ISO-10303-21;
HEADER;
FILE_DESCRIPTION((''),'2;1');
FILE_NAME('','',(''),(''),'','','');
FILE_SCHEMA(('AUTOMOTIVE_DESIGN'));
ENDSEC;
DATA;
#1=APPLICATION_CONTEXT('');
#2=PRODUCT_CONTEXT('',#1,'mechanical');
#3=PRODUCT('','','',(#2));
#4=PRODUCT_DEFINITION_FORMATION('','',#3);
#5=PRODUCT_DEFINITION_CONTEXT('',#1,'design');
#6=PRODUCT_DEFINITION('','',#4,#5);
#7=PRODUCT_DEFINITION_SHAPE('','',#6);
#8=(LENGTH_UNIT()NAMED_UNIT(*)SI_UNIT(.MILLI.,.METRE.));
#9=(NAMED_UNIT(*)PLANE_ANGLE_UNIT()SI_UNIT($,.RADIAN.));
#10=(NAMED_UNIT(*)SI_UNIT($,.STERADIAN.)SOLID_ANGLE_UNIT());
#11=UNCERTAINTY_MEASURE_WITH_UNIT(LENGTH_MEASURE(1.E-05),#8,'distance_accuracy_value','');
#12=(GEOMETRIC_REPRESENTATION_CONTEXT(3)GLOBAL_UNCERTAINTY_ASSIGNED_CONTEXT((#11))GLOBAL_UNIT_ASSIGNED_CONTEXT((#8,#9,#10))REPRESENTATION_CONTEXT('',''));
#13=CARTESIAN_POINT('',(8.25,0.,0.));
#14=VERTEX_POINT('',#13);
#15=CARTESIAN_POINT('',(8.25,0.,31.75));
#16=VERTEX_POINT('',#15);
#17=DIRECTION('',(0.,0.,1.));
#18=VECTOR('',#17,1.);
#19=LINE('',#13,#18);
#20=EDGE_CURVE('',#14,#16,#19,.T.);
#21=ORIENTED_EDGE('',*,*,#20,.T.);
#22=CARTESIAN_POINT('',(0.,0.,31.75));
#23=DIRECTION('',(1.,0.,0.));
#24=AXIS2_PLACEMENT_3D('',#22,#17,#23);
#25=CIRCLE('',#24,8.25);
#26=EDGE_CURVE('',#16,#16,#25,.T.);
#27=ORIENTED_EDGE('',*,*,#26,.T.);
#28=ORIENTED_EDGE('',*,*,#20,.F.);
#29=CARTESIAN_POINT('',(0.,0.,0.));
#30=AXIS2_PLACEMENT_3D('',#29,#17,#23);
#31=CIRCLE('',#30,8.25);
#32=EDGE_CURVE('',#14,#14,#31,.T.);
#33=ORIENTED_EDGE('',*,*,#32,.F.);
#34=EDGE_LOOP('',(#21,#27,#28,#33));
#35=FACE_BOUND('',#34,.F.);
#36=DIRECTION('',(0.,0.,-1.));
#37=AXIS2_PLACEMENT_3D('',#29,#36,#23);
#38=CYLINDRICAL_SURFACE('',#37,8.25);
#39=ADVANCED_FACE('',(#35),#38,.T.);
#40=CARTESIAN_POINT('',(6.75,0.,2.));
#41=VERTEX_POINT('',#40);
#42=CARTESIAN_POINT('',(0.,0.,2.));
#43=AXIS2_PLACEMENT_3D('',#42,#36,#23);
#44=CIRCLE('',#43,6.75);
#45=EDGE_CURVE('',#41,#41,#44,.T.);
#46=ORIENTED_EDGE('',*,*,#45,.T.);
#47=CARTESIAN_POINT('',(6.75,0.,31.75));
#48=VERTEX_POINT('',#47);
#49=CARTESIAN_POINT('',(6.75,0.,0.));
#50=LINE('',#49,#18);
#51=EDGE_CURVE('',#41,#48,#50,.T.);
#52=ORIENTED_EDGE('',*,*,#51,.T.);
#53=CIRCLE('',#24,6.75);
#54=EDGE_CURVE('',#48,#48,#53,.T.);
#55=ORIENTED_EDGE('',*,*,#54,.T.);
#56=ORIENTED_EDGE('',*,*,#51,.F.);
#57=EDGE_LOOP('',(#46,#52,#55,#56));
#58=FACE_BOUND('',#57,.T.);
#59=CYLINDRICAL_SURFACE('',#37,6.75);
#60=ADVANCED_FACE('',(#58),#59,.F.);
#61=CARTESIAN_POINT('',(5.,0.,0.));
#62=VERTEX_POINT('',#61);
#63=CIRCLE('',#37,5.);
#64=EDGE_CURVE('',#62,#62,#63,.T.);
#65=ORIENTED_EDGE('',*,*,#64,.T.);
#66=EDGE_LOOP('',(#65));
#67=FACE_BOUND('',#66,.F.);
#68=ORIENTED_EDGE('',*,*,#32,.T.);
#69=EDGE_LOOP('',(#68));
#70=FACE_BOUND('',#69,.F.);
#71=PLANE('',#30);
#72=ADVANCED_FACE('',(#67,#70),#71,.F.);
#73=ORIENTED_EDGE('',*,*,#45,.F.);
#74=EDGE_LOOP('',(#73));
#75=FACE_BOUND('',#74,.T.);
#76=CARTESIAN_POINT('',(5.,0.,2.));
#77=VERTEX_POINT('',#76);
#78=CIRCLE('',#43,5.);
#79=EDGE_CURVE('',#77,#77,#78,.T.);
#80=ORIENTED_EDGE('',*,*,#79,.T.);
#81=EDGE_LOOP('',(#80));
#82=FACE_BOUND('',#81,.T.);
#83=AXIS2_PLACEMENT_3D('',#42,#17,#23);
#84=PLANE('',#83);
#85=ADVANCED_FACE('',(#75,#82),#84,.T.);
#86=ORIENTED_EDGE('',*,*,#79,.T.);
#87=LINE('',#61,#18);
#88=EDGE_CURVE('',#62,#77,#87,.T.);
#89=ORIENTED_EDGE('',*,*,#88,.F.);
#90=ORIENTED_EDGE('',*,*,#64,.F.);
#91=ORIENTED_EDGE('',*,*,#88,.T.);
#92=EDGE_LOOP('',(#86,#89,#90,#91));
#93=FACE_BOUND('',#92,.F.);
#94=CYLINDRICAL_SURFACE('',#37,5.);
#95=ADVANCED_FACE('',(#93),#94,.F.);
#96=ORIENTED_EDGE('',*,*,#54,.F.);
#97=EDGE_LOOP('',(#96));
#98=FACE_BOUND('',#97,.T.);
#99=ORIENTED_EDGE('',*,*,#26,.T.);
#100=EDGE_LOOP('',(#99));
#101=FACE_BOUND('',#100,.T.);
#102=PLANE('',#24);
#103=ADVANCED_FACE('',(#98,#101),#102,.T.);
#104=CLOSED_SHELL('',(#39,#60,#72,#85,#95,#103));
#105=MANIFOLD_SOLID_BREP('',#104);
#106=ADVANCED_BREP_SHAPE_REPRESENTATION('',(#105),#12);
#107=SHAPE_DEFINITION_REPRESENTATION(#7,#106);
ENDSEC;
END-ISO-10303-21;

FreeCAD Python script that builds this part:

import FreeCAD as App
import Part
import Sketcher
from FreeCAD import Vector

doc = App.newDocument("Part")
body = doc.addObject("PartDesign::Body", "Body")

# Sketch on XY plane
sketch1 = body.newObject("Sketcher::SketchObject", "Sketch")
sketch1.AttachmentSupport = (doc.getObject("XY_Plane"), [""])
sketch1.MapMode = "FlatFace"
sketch1.addGeometry([
    Part.Circle(Vector(0, 0, 0), Vector(0, 0, 1), 8.25),
    Part.Circle(Vector(0, 0, 0), Vector(0, 0, 1), 6.75),
], False)
sketch1.addConstraint([
    Sketcher.Constraint("Coincident", 0, 3, -1, 1),
    Sketcher.Constraint("Coincident", 1, 3, -1, 1),
    Sketcher.Constraint("Diameter", 0, 16.5),
    Sketcher.Constraint("Diameter", 1, 13.5),
])
pad1 = body.newObject("PartDesign::Pad", "Pad")
pad1.Profile = sketch1
pad1.Length = 31.75

# Sketch on XY plane
sketch2 = body.newObject("Sketcher::SketchObject", "Sketch001")
sketch2.AttachmentSupport = (doc.getObject("XY_Plane"), [""])
sketch2.MapMode = "FlatFace"
sketch2.addGeometry(Part.Circle(Vector(0, 0, 0), Vector(0, 0, 1), 8.076927), False)
sketch2.addConstraint([
    Sketcher.Constraint("Coincident", 0, 3, -1, 1),
    Sketcher.Constraint("Diameter", 0, 16.153854),
])
pad2 = body.newObject("PartDesign::Pad", "Pad001")
pad2.Profile = sketch2
pad2.Length = 2

# Sketch on XY plane
sketch3 = body.newObject("Sketcher::SketchObject", "Sketch002")
sketch3.AttachmentSupport = (doc.getObject("XY_Plane"), [""])
sketch3.MapMode = "FlatFace"
sketch3.addGeometry(Part.Circle(Vector(0, 0, 0), Vector(0, 0, 1), 5), False)
sketch3.addConstraint([
    Sketcher.Constraint("Coincident", 0, 3, -1, 1),
    Sketcher.Constraint("Diameter", 0, 10.0),
])
pocket1 = body.newObject("PartDesign::Pocket", "Pocket")
pocket1.Profile = sketch3
pocket1.Length = 25
pocket1.Reversed = True

doc.recompute()
